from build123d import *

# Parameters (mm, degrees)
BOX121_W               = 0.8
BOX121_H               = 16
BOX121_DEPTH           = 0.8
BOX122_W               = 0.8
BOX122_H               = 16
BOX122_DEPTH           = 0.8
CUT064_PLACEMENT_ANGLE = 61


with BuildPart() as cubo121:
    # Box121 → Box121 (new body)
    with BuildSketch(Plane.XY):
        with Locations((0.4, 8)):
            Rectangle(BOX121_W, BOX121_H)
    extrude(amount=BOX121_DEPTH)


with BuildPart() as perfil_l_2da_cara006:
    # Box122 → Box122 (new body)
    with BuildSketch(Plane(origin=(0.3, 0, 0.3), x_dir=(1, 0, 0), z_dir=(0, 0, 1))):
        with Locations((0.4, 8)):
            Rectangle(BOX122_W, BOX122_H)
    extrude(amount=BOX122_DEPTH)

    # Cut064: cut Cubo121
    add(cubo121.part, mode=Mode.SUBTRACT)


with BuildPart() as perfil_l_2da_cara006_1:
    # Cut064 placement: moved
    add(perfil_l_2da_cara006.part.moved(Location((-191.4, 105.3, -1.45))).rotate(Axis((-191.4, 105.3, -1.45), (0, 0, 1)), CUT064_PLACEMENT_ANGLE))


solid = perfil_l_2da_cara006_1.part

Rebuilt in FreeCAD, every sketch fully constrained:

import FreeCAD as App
import Part
import Sketcher
from FreeCAD import Vector


def add_polygon(sketch, points):
    """Adds a closed chain of lines whose ends are joined by coincident constraints."""
    first, n = sketch.GeometryCount, len(points)
    for a, b in zip(points, points[1:] + points[:1]):
        sketch.addGeometry(Part.LineSegment(App.Vector(*a, 0), App.Vector(*b, 0)), False)
    for i in range(n):
        sketch.addConstraint(Sketcher.Constraint("Coincident", first + i, 2, first + (i + 1) % n, 1))

doc = App.newDocument("Part")
body = doc.addObject("PartDesign::Body", "Body")

sketch1 = body.newObject("Sketcher::SketchObject", "Sketch")
sketch1.AttachmentSupport = (doc.getObject("XY_Plane"), [""])
sketch1.MapMode = "FlatFace"
add_polygon(sketch1, [(0, 16), (0, 0), (0.8, 0), (0.8, 16)])
sketch1.addConstraint([
    Sketcher.Constraint("Vertical", 0),
    Sketcher.Constraint("Horizontal", 1),
    Sketcher.Constraint("Vertical", 2),
    Sketcher.Constraint("Horizontal", 3),
    Sketcher.Constraint("Coincident", 0, 2, -1, 1),
    Sketcher.Constraint("DistanceY", 0, 2, 0, 1, 16.0),
    Sketcher.Constraint("DistanceX", 1, 1, 1, 2, 0.8),
])
pad1 = body.newObject("PartDesign::Pad", "Pad")
pad1.Profile = sketch1
pad1.Length = 0.8
body2 = doc.addObject("PartDesign::Body", "Body001")

sketch2 = body2.newObject("Sketcher::SketchObject", "Sketch001")
sketch2.AttachmentSupport = (doc.getObject("XY_Plane001"), [""])
sketch2.MapMode = "FlatFace"
sketch2.AttachmentOffset = App.Placement(Vector(0, 0, 0.3), App.Rotation())
add_polygon(sketch2, [(0.3, 16), (0.3, 0), (1.1, 0), (1.1, 16)])
sketch2.addConstraint([
    Sketcher.Constraint("Vertical", 0),
    Sketcher.Constraint("Horizontal", 1),
    Sketcher.Constraint("Vertical", 2),
    Sketcher.Constraint("Horizontal", 3),
    Sketcher.Constraint("PointOnObject", 0, 2, -1),
    Sketcher.Constraint("DistanceY", 0, 2, 0, 1, 16.0),
    Sketcher.Constraint("DistanceX", 1, 1, 1, 2, 0.8),
    Sketcher.Constraint("DistanceX", -1, 1, 0, 2, 0.3),
])
pad2 = body2.newObject("PartDesign::Pad", "Pad001")
pad2.Profile = sketch2
pad2.Length = 0.8
doc.recompute()

boolean = body2.newObject("PartDesign::Boolean", "Boolean")
boolean.Type = "Cut"
boolean.addObjects([body])
body3 = doc.addObject("PartDesign::Body", "Body002")
doc.recompute()

body2.Placement = App.Placement(Vector(-191.4, 105.3, -1.45), App.Rotation(Vector(0, 0, 1), 61))
boolean2 = body3.newObject("PartDesign::Boolean", "Boolean001")
boolean2.Type = "Fuse"
boolean2.addObjects([body2])

doc.recompute()
